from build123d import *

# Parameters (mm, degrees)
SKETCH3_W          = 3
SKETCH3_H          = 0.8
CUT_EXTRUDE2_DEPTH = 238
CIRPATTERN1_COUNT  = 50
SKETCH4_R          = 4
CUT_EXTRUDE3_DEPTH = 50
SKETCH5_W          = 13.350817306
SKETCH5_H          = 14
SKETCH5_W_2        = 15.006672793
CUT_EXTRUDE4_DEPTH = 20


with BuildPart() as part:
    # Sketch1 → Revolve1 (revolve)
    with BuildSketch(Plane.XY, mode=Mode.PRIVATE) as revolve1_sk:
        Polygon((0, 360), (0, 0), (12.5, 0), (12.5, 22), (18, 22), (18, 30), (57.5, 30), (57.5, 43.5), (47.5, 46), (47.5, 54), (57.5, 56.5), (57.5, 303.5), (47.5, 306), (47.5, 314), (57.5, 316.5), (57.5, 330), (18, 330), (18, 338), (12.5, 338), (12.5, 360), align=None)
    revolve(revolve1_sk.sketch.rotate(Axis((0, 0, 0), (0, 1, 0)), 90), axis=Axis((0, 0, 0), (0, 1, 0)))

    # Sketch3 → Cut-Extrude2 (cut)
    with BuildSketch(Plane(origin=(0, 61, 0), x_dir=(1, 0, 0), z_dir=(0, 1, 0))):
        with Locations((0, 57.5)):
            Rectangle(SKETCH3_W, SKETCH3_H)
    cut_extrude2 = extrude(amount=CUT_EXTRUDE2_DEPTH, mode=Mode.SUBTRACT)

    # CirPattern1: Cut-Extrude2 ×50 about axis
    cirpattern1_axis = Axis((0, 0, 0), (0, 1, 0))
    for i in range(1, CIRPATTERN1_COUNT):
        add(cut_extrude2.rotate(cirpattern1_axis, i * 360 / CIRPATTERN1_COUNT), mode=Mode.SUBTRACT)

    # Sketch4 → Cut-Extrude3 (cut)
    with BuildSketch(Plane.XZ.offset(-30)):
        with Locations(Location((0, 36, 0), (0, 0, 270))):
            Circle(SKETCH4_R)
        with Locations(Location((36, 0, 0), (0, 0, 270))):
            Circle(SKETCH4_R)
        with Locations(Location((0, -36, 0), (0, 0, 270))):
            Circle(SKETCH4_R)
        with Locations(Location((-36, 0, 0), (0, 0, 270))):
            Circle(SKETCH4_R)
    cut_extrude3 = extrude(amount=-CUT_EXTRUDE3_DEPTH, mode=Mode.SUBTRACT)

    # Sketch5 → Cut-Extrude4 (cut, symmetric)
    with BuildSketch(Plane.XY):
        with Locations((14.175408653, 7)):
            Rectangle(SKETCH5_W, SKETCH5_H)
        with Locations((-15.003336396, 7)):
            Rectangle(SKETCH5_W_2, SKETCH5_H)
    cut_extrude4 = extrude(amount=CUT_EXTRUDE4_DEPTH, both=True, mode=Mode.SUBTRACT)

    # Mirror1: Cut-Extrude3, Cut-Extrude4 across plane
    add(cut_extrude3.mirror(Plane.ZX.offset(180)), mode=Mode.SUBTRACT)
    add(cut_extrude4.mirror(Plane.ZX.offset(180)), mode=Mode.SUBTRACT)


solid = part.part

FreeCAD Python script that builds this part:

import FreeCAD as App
import Part
import Sketcher

doc = App.newDocument("Part")
body = doc.addObject("PartDesign::Body", "Body")

sketch1 = doc.addObject("Sketcher::SketchObject", "Sketch")
body.addObject(sketch1)
sketch1.AttachmentSupport = (doc.XY_Plane, [""])
sketch1.MapMode = "FlatFace"
sketch1.addGeometry([
    Part.LineSegment(App.Vector(0, 360, 0), App.Vector(0, 0, 0)),
    Part.LineSegment(App.Vector(0, 0, 0), App.Vector(12, 0, 0)),
    Part.LineSegment(App.Vector(12, 0, 0), App.Vector(12, 22, 0)),
    Part.LineSegment(App.Vector(12, 22, 0), App.Vector(18, 22, 0)),
    Part.LineSegment(App.Vector(18, 22, 0), App.Vector(18, 30, 0)),
    Part.LineSegment(App.Vector(18, 30, 0), App.Vector(58, 30, 0)),
    Part.LineSegment(App.Vector(58, 30, 0), App.Vector(58, 44, 0)),
    Part.LineSegment(App.Vector(58, 44, 0), App.Vector(48, 46, 0)),
    Part.LineSegment(App.Vector(48, 46, 0), App.Vector(48, 54, 0)),
    Part.LineSegment(App.Vector(48, 54, 0), App.Vector(58, 56, 0)),
    Part.LineSegment(App.Vector(58, 56, 0), App.Vector(58, 304, 0)),
    Part.LineSegment(App.Vector(58, 304, 0), App.Vector(48, 306, 0)),
    Part.LineSegment(App.Vector(48, 306, 0), App.Vector(48, 314, 0)),
    Part.LineSegment(App.Vector(48, 314, 0), App.Vector(58, 316, 0)),
    Part.LineSegment(App.Vector(58, 316, 0), App.Vector(58, 330, 0)),
    Part.LineSegment(App.Vector(58, 330, 0), App.Vector(18, 330, 0)),
    Part.LineSegment(App.Vector(18, 330, 0), App.Vector(18, 338, 0)),
    Part.LineSegment(App.Vector(18, 338, 0), App.Vector(12, 338, 0)),
    Part.LineSegment(App.Vector(12, 338, 0), App.Vector(12, 360, 0)),
    Part.LineSegment(App.Vector(12, 360, 0), App.Vector(0, 360, 0)),
], False)
sketch1.addConstraint([
    Sketcher.Constraint("Coincident", 0, 2, 1, 1),
    Sketcher.Constraint("Coincident", 1, 2, 2, 1),
    Sketcher.Constraint("Coincident", 2, 2, 3, 1),
    Sketcher.Constraint("Coincident", 3, 2, 4, 1),
    Sketcher.Constraint("Coincident", 4, 2, 5, 1),
    Sketcher.Constraint("Coincident", 5, 2, 6, 1),
    Sketcher.Constraint("Coincident", 6, 2, 7, 1),
    Sketcher.Constraint("Coincident", 7, 2, 8, 1),
    Sketcher.Constraint("Coincident", 8, 2, 9, 1),
    Sketcher.Constraint("Coincident", 9, 2, 10, 1),
    Sketcher.Constraint("Coincident", 10, 2, 11, 1),
    Sketcher.Constraint("Coincident", 11, 2, 12, 1),
    Sketcher.Constraint("Coincident", 12, 2, 13, 1),
    Sketcher.Constraint("Coincident", 13, 2, 14, 1),
    Sketcher.Constraint("Coincident", 14, 2, 15, 1),
    Sketcher.Constraint("Coincident", 15, 2, 16, 1),
    Sketcher.Constraint("Coincident", 16, 2, 17, 1),
    Sketcher.Constraint("Coincident", 17, 2, 18, 1),
    Sketcher.Constraint("Coincident", 18, 2, 19, 1),
    Sketcher.Constraint("Coincident", 19, 2, 0, 1),
    Sketcher.Constraint("Vertical", 0),
    Sketcher.Constraint("Horizontal", 1),
    Sketcher.Constraint("Vertical", 2),
    Sketcher.Constraint("Horizontal", 3),
    Sketcher.Constraint("Vertical", 4),
    Sketcher.Constraint("Horizontal", 5),
    Sketcher.Constraint("Vertical", 6),
    Sketcher.Constraint("Vertical", 8),
    Sketcher.Constraint("Vertical", 10),
    Sketcher.Constraint("Vertical", 12),
    Sketcher.Constraint("Vertical", 14),
    Sketcher.Constraint("Horizontal", 15),
    Sketcher.Constraint("Vertical", 16),
    Sketcher.Constraint("Horizontal", 17),
    Sketcher.Constraint("Vertical", 18),
    Sketcher.Constraint("Horizontal", 19),
    Sketcher.Constraint("Coincident", 0, 2, -1, 1),
    Sketcher.Constraint("Parallel", 7, 11),
    Sketcher.Constraint("Parallel", 9, 13),
    Sketcher.Constraint("Vertical", 6, 2, 9, 2),
    Sketcher.Constraint("Vertical", 8, 2, 11, 2),
    Sketcher.Constraint("Vertical", 10, 2, 13, 2),
    Sketcher.Constraint("Vertical", 4, 2, 15, 2),
    Sketcher.Constraint("Vertical", 2, 2, 17, 2),
    Sketcher.Constraint("Equal", 4, 8),
    Sketcher.Constraint("Equal", 8, 12),
    Sketcher.Constraint("Equal", 6, 14),
    Sketcher.Constraint("Equal", 12, 16),
    Sketcher.Constraint("Equal", 2, 18),
    Sketcher.Constraint("Equal", 7, 9),
    Sketcher.Constraint("DistanceY", 0, 2, 0, 1, 360.0),
    Sketcher.Constraint("DistanceY", 2, 1, 2, 2, 22.0),
    Sketcher.Constraint("DistanceY", 4, 1, 4, 2, 8.0),
    Sketcher.Constraint("DistanceY", 10, 1, 10, 2, 247.0),
    Sketcher.Constraint("DistanceX", 1, 1, 1, 2, 12.5),
    Sketcher.Constraint("DistanceX", 3, 1, 3, 2, 5.5),
    Sketcher.Constraint("DistanceX", 5, 1, 5, 2, 39.5),
    Sketcher.Constraint("DistanceY", 6, 1, 6, 2, 13.5),
    Sketcher.Constraint("DistanceX", 7, 2, 6, 2, 10.0),
])
revolution = doc.addObject("PartDesign::Revolution", "Revolution")
body.addObject(revolution)
revolution.Profile = sketch1
revolution.ReferenceAxis = (sketch1, ["V_Axis"])
revolution.Angle = 360

sketch2 = doc.addObject("Sketcher::SketchObject", "Sketch001")
body.addObject(sketch2)
sketch2.AttachmentSupport = (doc.XZ_Plane, [""])
sketch2.MapMode = "FlatFace"
sketch2.AttachmentOffset = App.Placement(App.Vector(0, 0, -61), App.Rotation())
sketch2.addGeometry([
    Part.LineSegment(App.Vector(-1.5, -57.9, 0), App.Vector(-1.5, -57.1, 0)),
    Part.LineSegment(App.Vector(-1.5, -57.1, 0), App.Vector(1.5, -57.1, 0)),
    Part.LineSegment(App.Vector(1.5, -57.1, 0), App.Vector(1.5, -57.9, 0)),
    Part.LineSegment(App.Vector(1.5, -57.9, 0), App.Vector(-1.5, -57.9, 0)),
], False)
sketch2.addConstraint([
    Sketcher.Constraint("Coincident", 0, 2, 1, 1),
    Sketcher.Constraint("Coincident", 1, 2, 2, 1),
    Sketcher.Constraint("Coincident", 2, 2, 3, 1),
    Sketcher.Constraint("Coincident", 3, 2, 0, 1),
    Sketcher.Constraint("Vertical", 0),
    Sketcher.Constraint("Horizontal", 1),
    Sketcher.Constraint("Vertical", 2),
    Sketcher.Constraint("Horizontal", 3),
    Sketcher.Constraint("DistanceX", 1, 1, 1, 2, 3.0),
    Sketcher.Constraint("DistanceY", 0, 1, 0, 2, 0.8),
    Sketcher.Constraint("DistanceX", 0, 2, -1, 1, 1.5),
    Sketcher.Constraint("DistanceY", 0, 2, -1, 1, 57.1),
])
pocket1 = doc.addObject("PartDesign::Pocket", "Pocket")
body.addObject(pocket1)
pocket1.Profile = sketch2
pocket1.Length = 238
doc.recompute()

polarpattern = doc.addObject("PartDesign::PolarPattern", "PolarPattern")
body.addObject(polarpattern)
polarpattern.Originals = [pocket1]
polarpattern.Axis = (doc.Y_Axis, [""])
polarpattern.Angle = 360
polarpattern.Occurrences = 50
body.Tip = polarpattern

sketch3 = doc.addObject("Sketcher::SketchObject", "Sketch002")
body.addObject(sketch3)
sketch3.AttachmentSupport = (doc.XZ_Plane, [""])
sketch3.MapMode = "FlatFace"
sketch3.AttachmentOffset = App.Placement(App.Vector(0, 0, -30), App.Rotation())
sketch3.addGeometry([
    Part.Circle(App.Vector(0, 36, 0), App.Vector(0, 0, 1), 4),
    Part.Circle(App.Vector(36, 0, 0), App.Vector(0, 0, 1), 4),
    Part.Circle(App.Vector(0, -36, 0), App.Vector(0, 0, 1), 4),
    Part.Circle(App.Vector(-36, 0, 0), App.Vector(0, 0, 1), 4),
], False)
sketch3.addConstraint([
    Sketcher.Constraint("Equal", 0, 1),
    Sketcher.Constraint("Equal", 1, 2),
    Sketcher.Constraint("Equal", 2, 3),
    Sketcher.Constraint("Symmetric", 0, 3, 2, 3, -1, 1),
    Sketcher.Constraint("Symmetric", 1, 3, 3, 3, -1, 1),
    Sketcher.Constraint("PointOnObject", 0, 3, -2),
    Sketcher.Constraint("PointOnObject", 1, 3, -1),
    Sketcher.Constraint("Diameter", 0, 8.0),
    Sketcher.Constraint("DistanceY", -1, 1, 0, 3, 36.0),
    Sketcher.Constraint("DistanceX", -1, 1, 1, 3, 36.0),
])
pocket2 = doc.addObject("PartDesign::Pocket", "Pocket001")
body.addObject(pocket2)
pocket2.Profile = sketch3
pocket2.Length = 50

sketch4 = doc.addObject("Sketcher::SketchObject", "Sketch003")
body.addObject(sketch4)
sketch4.AttachmentSupport = (doc.XY_Plane, [""])
sketch4.MapMode = "FlatFace"
sketch4.addGeometry([
    Part.LineSegment(App.Vector(8, 14, 0), App.Vector(8, 0, 0)),
    Part.LineSegment(App.Vector(8, 0, 0), App.Vector(21, 0, 0)),
    Part.LineSegment(App.Vector(21, 0, 0), App.Vector(21, 14, 0)),
    Part.LineSegment(App.Vector(21, 14, 0), App.Vector(8, 14, 0)),
    Part.LineSegment(App.Vector(-23, 14, 0), App.Vector(-23, 0, 0)),
    Part.LineSegment(App.Vector(-23, 0, 0), App.Vector(-7, 0, 0)),
    Part.LineSegment(App.Vector(-7, 0, 0), App.Vector(-7, 14, 0)),
    Part.LineSegment(App.Vector(-7, 14, 0), App.Vector(-23, 14, 0)),
], False)
sketch4.addConstraint([
    Sketcher.Constraint("Coincident", 0, 2, 1, 1),
    Sketcher.Constraint("Coincident", 1, 2, 2, 1),
    Sketcher.Constraint("Coincident", 2, 2, 3, 1),
    Sketcher.Constraint("Coincident", 3, 2, 0, 1),
    Sketcher.Constraint("Coincident", 4, 2, 5, 1),
    Sketcher.Constraint("Coincident", 5, 2, 6, 1),
    Sketcher.Constraint("Coincident", 6, 2, 7, 1),
    Sketcher.Constraint("Coincident", 7, 2, 4, 1),
    Sketcher.Constraint("Vertical", 0),
    Sketcher.Constraint("Horizontal", 1),
    Sketcher.Constraint("Vertical", 2),
    Sketcher.Constraint("Horizontal", 3),
    Sketcher.Constraint("Vertical", 4),
    Sketcher.Constraint("Horizontal", 5),
    Sketcher.Constraint("Vertical", 6),
    Sketcher.Constraint("Horizontal", 7),
    Sketcher.Constraint("Symmetric", 0, 2, 5, 2, -1, 1),
    Sketcher.Constraint("PointOnObject", 0, 2, -1),
    Sketcher.Constraint("Horizontal", 3, 2, 6, 2),
    Sketcher.Constraint("DistanceY", 0, 2, 0, 1, 14.0),
    Sketcher.Constraint("DistanceX", 5, 2, 0, 2, 15.0),
    Sketcher.Constraint("DistanceX", 1, 1, 1, 2, 13.350817),
    Sketcher.Constraint("DistanceX", 5, 1, 5, 2, 15.006673),
])
pocket3 = doc.addObject("PartDesign::Pocket", "Pocket002")
body.addObject(pocket3)
pocket3.Profile = sketch4
pocket3.Length = 40
pocket3.Midplane = True
doc.recompute()

datumplane = doc.addObject("PartDesign::Plane", "DatumPlane")
body.addObject(datumplane)
datumplane.AttachmentSupport = (doc.XZ_Plane, [""])
datumplane.MapMode = "FlatFace"
datumplane.AttachmentOffset = App.Placement(App.Vector(0, 0, -180), App.Rotation())
mirrored = doc.addObject("PartDesign::Mirrored", "Mirrored")
body.addObject(mirrored)
mirrored.Originals = [pocket2, pocket3]
mirrored.MirrorPlane = (datumplane, [""])
body.Tip = mirrored

doc.recompute()
